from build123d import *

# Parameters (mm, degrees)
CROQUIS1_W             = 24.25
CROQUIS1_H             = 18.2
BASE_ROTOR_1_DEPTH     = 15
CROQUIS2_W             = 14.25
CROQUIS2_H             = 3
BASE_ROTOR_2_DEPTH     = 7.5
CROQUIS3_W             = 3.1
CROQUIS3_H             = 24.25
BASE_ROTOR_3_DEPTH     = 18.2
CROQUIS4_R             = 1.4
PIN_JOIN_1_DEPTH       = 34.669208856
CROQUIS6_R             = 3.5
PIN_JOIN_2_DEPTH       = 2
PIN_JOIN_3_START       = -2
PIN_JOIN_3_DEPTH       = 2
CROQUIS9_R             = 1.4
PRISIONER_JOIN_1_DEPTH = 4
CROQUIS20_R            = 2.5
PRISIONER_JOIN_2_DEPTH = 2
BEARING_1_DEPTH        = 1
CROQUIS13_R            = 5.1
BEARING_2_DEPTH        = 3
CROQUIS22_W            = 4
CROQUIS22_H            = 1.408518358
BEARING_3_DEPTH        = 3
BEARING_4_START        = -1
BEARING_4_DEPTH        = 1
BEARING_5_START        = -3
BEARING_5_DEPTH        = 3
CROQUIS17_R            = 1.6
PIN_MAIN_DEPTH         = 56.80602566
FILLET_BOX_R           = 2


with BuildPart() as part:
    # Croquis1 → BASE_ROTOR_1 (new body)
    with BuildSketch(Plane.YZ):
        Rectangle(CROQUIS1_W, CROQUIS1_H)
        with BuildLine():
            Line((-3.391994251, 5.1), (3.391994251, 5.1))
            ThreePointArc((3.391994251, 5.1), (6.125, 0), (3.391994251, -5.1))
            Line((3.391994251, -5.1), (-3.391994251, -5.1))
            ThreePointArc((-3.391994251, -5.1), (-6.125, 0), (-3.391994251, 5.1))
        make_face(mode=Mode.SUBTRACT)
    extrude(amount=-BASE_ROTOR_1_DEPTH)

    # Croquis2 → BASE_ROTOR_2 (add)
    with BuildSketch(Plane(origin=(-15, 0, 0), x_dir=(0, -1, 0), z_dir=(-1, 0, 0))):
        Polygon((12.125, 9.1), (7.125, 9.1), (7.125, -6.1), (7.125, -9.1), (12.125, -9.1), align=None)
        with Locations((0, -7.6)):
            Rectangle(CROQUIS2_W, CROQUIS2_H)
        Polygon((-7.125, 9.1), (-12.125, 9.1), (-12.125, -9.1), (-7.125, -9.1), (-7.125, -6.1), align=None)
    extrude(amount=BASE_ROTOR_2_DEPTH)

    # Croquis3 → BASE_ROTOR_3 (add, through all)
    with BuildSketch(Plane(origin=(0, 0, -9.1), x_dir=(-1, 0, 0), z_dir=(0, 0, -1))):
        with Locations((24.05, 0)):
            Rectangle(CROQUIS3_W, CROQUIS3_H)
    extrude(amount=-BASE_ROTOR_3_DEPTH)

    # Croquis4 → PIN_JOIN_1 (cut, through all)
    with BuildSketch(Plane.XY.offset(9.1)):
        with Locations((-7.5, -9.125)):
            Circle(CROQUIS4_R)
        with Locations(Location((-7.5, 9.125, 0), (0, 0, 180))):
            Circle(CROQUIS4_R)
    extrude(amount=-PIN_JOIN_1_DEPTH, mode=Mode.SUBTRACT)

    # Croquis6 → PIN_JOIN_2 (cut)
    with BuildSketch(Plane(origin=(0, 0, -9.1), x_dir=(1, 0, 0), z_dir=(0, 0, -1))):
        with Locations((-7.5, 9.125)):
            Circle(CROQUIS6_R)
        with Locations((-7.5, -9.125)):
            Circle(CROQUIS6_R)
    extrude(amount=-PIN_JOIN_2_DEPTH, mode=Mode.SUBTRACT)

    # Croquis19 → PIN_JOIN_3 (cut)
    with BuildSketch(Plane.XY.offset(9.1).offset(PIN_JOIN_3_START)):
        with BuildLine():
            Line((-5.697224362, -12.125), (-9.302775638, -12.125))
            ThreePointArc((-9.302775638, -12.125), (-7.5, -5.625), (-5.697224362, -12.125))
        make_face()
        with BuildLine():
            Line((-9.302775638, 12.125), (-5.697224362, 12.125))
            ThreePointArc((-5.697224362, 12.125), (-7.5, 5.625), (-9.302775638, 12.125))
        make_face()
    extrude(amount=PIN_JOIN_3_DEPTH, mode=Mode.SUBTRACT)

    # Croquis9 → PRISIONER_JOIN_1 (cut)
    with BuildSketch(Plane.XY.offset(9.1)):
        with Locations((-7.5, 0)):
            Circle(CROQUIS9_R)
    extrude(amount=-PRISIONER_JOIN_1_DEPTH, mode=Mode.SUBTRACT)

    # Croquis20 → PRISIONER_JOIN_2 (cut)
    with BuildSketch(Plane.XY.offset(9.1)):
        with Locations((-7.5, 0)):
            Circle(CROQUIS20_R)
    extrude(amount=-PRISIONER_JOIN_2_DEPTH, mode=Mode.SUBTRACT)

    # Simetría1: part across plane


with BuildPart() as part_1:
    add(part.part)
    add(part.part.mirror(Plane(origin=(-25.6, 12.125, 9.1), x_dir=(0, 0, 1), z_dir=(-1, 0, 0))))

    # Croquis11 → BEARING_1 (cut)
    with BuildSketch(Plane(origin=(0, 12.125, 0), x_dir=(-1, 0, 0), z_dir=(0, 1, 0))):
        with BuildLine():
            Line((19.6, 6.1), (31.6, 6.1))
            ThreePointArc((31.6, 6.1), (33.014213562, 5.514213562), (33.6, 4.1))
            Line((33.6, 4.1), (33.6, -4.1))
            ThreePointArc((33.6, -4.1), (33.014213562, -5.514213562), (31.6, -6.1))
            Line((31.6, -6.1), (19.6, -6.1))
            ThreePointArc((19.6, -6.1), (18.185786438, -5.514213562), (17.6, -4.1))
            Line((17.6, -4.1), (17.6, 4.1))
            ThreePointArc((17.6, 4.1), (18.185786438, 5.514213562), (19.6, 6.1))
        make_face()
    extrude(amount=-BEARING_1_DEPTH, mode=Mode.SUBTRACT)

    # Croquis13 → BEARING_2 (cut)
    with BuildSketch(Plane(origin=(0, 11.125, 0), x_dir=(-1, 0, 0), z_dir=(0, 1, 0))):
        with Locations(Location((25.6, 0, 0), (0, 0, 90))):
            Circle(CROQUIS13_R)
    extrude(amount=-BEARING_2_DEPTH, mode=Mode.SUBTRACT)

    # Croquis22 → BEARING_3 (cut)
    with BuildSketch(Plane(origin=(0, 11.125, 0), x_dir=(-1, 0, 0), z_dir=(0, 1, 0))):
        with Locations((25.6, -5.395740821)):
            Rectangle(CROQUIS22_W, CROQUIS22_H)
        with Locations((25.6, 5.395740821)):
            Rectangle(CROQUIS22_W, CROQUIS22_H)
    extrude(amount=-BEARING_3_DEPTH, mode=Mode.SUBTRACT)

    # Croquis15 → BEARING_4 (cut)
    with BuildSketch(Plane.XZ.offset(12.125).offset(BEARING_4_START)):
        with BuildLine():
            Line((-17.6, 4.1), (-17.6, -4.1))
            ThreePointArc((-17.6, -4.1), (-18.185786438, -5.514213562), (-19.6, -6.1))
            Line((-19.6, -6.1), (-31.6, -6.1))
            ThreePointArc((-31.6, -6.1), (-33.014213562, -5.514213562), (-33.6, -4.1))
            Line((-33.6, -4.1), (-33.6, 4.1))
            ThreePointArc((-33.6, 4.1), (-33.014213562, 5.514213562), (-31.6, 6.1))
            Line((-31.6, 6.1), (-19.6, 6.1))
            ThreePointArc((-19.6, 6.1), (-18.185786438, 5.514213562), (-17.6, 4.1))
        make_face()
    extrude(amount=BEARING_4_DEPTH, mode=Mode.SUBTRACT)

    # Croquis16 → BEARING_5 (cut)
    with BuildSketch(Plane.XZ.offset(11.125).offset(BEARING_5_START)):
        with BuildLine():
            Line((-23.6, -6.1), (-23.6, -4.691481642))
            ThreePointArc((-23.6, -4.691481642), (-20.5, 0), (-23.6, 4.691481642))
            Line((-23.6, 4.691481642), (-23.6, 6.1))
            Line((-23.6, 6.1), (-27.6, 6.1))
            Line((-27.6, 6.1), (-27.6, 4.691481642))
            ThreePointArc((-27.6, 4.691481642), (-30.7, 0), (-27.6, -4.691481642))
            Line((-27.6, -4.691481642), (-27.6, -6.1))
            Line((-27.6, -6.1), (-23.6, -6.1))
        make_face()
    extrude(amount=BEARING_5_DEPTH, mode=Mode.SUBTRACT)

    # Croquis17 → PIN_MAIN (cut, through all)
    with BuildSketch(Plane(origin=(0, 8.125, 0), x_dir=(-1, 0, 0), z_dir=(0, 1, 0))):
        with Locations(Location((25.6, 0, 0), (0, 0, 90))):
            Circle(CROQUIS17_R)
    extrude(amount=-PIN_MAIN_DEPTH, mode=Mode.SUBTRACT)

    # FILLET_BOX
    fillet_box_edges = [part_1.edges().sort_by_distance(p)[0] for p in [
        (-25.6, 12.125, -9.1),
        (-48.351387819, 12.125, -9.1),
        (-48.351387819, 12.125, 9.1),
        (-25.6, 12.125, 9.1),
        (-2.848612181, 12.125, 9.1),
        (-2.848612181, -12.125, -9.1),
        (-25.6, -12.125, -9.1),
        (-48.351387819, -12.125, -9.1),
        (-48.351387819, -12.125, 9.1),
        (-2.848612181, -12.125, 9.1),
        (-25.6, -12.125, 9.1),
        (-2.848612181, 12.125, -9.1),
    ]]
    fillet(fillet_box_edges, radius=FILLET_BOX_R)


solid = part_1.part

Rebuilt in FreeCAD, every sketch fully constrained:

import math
import FreeCAD as App
import Part
import Sketcher
from FreeCAD import Vector


def edges_at(feature, points):
    """Names of the edges that pass closest to the given points."""
    edges = feature.Shape.Edges
    near = lambda p: min(range(len(edges)), key=lambda i: edges[i].distToShape(Part.Vertex(*p))[0])
    return sorted({f"Edge{near(p) + 1}" for p in points})


def add_polygon(sketch, points):
    """Adds a closed chain of lines whose ends are joined by coincident constraints."""
    first, n = sketch.GeometryCount, len(points)
    for a, b in zip(points, points[1:] + points[:1]):
        sketch.addGeometry(Part.LineSegment(App.Vector(*a, 0), App.Vector(*b, 0)), False)
    for i in range(n):
        sketch.addConstraint(Sketcher.Constraint("Coincident", first + i, 2, first + (i + 1) % n, 1))

doc = App.newDocument("Part")
body = doc.addObject("PartDesign::Body", "Body")

# Sketch on YZ plane
sketch1 = body.newObject("Sketcher::SketchObject", "Sketch")
sketch1.AttachmentSupport = (doc.getObject("YZ_Plane"), [""])
sketch1.MapMode = "FlatFace"
add_polygon(sketch1, [(-12.125, 9.1), (-12.125, -9.1), (12.125, -9.1), (12.125, 9.1)])  # lines 0-3
sketch1.addGeometry(Part.ArcOfCircle(Part.Circle(Vector(0, 0, 0), Vector(0, 0, 1), 6.125), math.radians(123.627756), math.radians(236.372244)), False)  # 4
sketch1.addGeometry(Part.LineSegment(Vector(-3.391994, 5.1, 0), Vector(3.391994, 5.1, 0)), False)  # 5
sketch1.addGeometry(Part.ArcOfCircle(Part.Circle(Vector(0, 0, 0), Vector(0, 0, 1), 6.125), math.radians(-56.372244), math.radians(56.372244)), False)  # 6
sketch1.addGeometry(Part.LineSegment(Vector(3.391994, -5.1, 0), Vector(-3.391994, -5.1, 0)), False)  # 7
sketch1.addConstraint([
    Sketcher.Constraint("Coincident", 4, 1, 5, 1),
    Sketcher.Constraint("Coincident", 5, 2, 6, 2),
    Sketcher.Constraint("Coincident", 6, 1, 7, 1),
    Sketcher.Constraint("Coincident", 7, 2, 4, 2),
    Sketcher.Constraint("Vertical", 0),
    Sketcher.Constraint("Horizontal", 1),
    Sketcher.Constraint("Vertical", 2),
    Sketcher.Constraint("Horizontal", 3),
    Sketcher.Constraint("Horizontal", 5),
    Sketcher.Constraint("Horizontal", 7),
    Sketcher.Constraint("Coincident", 4, 3, -1, 1),
    Sketcher.Constraint("Coincident", 6, 3, -1, 1),
    Sketcher.Constraint("Equal", 4, 6),
    Sketcher.Constraint("Symmetric", 0, 2, 2, 2, -1, 1),
    Sketcher.Constraint("Vertical", 5, 2, 6, 1),
    Sketcher.Constraint("DistanceY", 0, 2, 0, 1, 18.2),
    Sketcher.Constraint("Radius", 4, 6.125),
    Sketcher.Constraint("DistanceY", 4, 1, 3, 2, 4.0),
    Sketcher.Constraint("DistanceX", 1, 1, 1, 2, 24.25),
])
pad1 = body.newObject("PartDesign::Pad", "Pad")
pad1.Profile = sketch1
pad1.Length = 15
pad1.Reversed = True

# Sketch on YZ plane
sketch2 = body.newObject("Sketcher::SketchObject", "Sketch001")
sketch2.AttachmentSupport = (doc.getObject("YZ_Plane"), [""])
sketch2.MapMode = "FlatFace"
sketch2.AttachmentOffset = App.Placement(Vector(0, 0, -15), App.Rotation())
add_polygon(sketch2, [(-12.125, 9.1), (-7.125, 9.1), (-7.125, -6.1), (7.125, -6.1), (7.125, 9.1), (12.125, 9.1), (12.125, -9.1), (-12.125, -9.1)])  # lines 0-7
sketch2.addConstraint([
    Sketcher.Constraint("Horizontal", 0),
    Sketcher.Constraint("Vertical", 1),
    Sketcher.Constraint("Horizontal", 2),
    Sketcher.Constraint("Vertical", 3),
    Sketcher.Constraint("Horizontal", 4),
    Sketcher.Constraint("Vertical", 5),
    Sketcher.Constraint("Horizontal", 6),
    Sketcher.Constraint("Vertical", 7),
    Sketcher.Constraint("Symmetric", 4, 2, 6, 2, -1, 1),
    Sketcher.Constraint("Symmetric", 0, 2, 3, 2, -2),
    Sketcher.Constraint("DistanceX", 0, 1, 0, 2, 5.0),
    Sketcher.Constraint("DistanceY", 1, 2, 1, 1, 15.2),
    Sketcher.Constraint("DistanceY", 5, 2, 5, 1, 18.2),
    Sketcher.Constraint("DistanceX", 2, 1, 2, 2, 14.25),
])
pad2 = body.newObject("PartDesign::Pad", "Pad001")
pad2.Profile = sketch2
pad2.Length = 7.5
pad2.Reversed = True

# Sketch on XY plane
sketch3 = body.newObject("Sketcher::SketchObject", "Sketch002")
sketch3.AttachmentSupport = (doc.getObject("XY_Plane"), [""])
sketch3.MapMode = "FlatFace"
sketch3.AttachmentOffset = App.Placement(Vector(0, 0, -9.1), App.Rotation())
add_polygon(sketch3, [(-22.5, 12.125), (-22.5, -12.125), (-25.6, -12.125), (-25.6, 12.125)])  # lines 0-3
sketch3.addConstraint([
    Sketcher.Constraint("Vertical", 0),
    Sketcher.Constraint("Horizontal", 1),
    Sketcher.Constraint("Vertical", 2),
    Sketcher.Constraint("Horizontal", 3),
    Sketcher.Constraint("DistanceX", 1, 2, 1, 1, 3.1),
    Sketcher.Constraint("DistanceY", 0, 2, 0, 1, 24.25),
    Sketcher.Constraint("DistanceX", 0, 2, -1, 1, 22.5),
    Sketcher.Constraint("DistanceY", 0, 2, -1, 1, 12.125),
])
pad3 = body.newObject("PartDesign::Pad", "Pad002")
pad3.Profile = sketch3
pad3.Length = 18.2

# Sketch on XY plane
sketch4 = body.newObject("Sketcher::SketchObject", "Sketch003")
sketch4.AttachmentSupport = (doc.getObject("XY_Plane"), [""])
sketch4.MapMode = "FlatFace"
sketch4.AttachmentOffset = App.Placement(Vector(0, 0, 9.1), App.Rotation())
sketch4.addGeometry([
    Part.Circle(Vector(-7.5, -9.125, 0), Vector(0, 0, 1), 1.4),
    Part.Circle(Vector(-7.5, 9.125, 0), Vector(0, 0, 1), 1.4),
], False)
sketch4.addConstraint([
    Sketcher.Constraint("Equal", 0, 1),
    Sketcher.Constraint("Symmetric", 0, 3, 1, 3, -1),
    Sketcher.Constraint("Diameter", 0, 2.8),
    Sketcher.Constraint("DistanceX", 0, 3, -1, 1, 7.5),
    Sketcher.Constraint("DistanceY", 0, 3, 1, 3, 18.25),
])
pocket1 = body.newObject("PartDesign::Pocket", "Pocket")
pocket1.Profile = sketch4
pocket1.Type = "ThroughAll"

# Sketch on XY plane
sketch5 = body.newObject("Sketcher::SketchObject", "Sketch004")
sketch5.AttachmentSupport = (doc.getObject("XY_Plane"), [""])
sketch5.MapMode = "FlatFace"
sketch5.AttachmentOffset = App.Placement(Vector(0, 0, -9.1), App.Rotation())
sketch5.addGeometry([
    Part.Circle(Vector(-7.5, -9.125, 0), Vector(0, 0, 1), 3.5),
    Part.Circle(Vector(-7.5, 9.125, 0), Vector(0, 0, 1), 3.5),
], False)
sketch5.addConstraint([
    Sketcher.Constraint("Equal", 0, 1),
    Sketcher.Constraint("Symmetric", 0, 3, 1, 3, -1),
    Sketcher.Constraint("Diameter", 0, 7.0),
    Sketcher.Constraint("DistanceX", 0, 3, -1, 1, 7.5),
    Sketcher.Constraint("DistanceY", 0, 3, 1, 3, 18.25),
])
pocket2 = body.newObject("PartDesign::Pocket", "Pocket001")
pocket2.Profile = sketch5
pocket2.Length = 2
pocket2.Reversed = True

# Sketch on XY plane
sketch6 = body.newObject("Sketcher::SketchObject", "Sketch005")
sketch6.AttachmentSupport = (doc.getObject("XY_Plane"), [""])
sketch6.MapMode = "FlatFace"
sketch6.AttachmentOffset = App.Placement(Vector(0, 0, 7.1), App.Rotation())
sketch6.addGeometry([
    Part.LineSegment(Vector(-9.302776, -12.125, 0), Vector(-5.697224, -12.125, 0)),
    Part.ArcOfCircle(Part.Circle(Vector(-7.5, -9.125, 0), Vector(0, 0, 1), 3.5), math.radians(-58.997281), math.radians(238.997281)),
    Part.LineSegment(Vector(-5.697224, 12.125, 0), Vector(-9.302776, 12.125, 0)),
    Part.ArcOfCircle(Part.Circle(Vector(-7.5, 9.125, 0), Vector(0, 0, 1), 3.5), math.radians(121.002719), math.radians(418.997281)),
], False)
sketch6.addConstraint([
    Sketcher.Constraint("Coincident", 0, 1, 1, 2),
    Sketcher.Constraint("Coincident", 1, 1, 0, 2),
    Sketcher.Constraint("Coincident", 2, 1, 3, 2),
    Sketcher.Constraint("Coincident", 3, 1, 2, 2),
    Sketcher.Constraint("Horizontal", 0),
    Sketcher.Constraint("Horizontal", 2),
    Sketcher.Constraint("Equal", 1, 3),
    Sketcher.Constraint("Symmetric", 1, 3, 3, 3, -1),
    Sketcher.Constraint("Vertical", 1, 1, 2, 1),
    Sketcher.Constraint("Radius", 1, 3.5),
    Sketcher.Constraint("DistanceY", 0, 1, 1, 3, 3.0),
    Sketcher.Constraint("DistanceX", 1, 3, -1, 1, 7.5),
    Sketcher.Constraint("DistanceY", 1, 3, 3, 3, 18.25),
])
pocket3 = body.newObject("PartDesign::Pocket", "Pocket002")
pocket3.Profile = sketch6
pocket3.Length = 2
pocket3.Reversed = True

# Sketch on XY plane
sketch7 = body.newObject("Sketcher::SketchObject", "Sketch006")
sketch7.AttachmentSupport = (doc.getObject("XY_Plane"), [""])
sketch7.MapMode = "FlatFace"
sketch7.AttachmentOffset = App.Placement(Vector(0, 0, 9.1), App.Rotation())
sketch7.addGeometry(Part.Circle(Vector(-7.5, 0, 0), Vector(0, 0, 1), 1.4), False)
sketch7.addConstraint([
    Sketcher.Constraint("PointOnObject", 0, 3, -1),
    Sketcher.Constraint("Diameter", 0, 2.8),
    Sketcher.Constraint("DistanceX", 0, 3, -1, 1, 7.5),
])
pocket4 = body.newObject("PartDesign::Pocket", "Pocket003")
pocket4.Profile = sketch7
pocket4.Length = 4

# Sketch on XY plane
sketch8 = body.newObject("Sketcher::SketchObject", "Sketch007")
sketch8.AttachmentSupport = (doc.getObject("XY_Plane"), [""])
sketch8.MapMode = "FlatFace"
sketch8.AttachmentOffset = App.Placement(Vector(0, 0, 9.1), App.Rotation())
sketch8.addGeometry(Part.Circle(Vector(-7.5, 0, 0), Vector(0, 0, 1), 2.5), False)
sketch8.addConstraint([
    Sketcher.Constraint("PointOnObject", 0, 3, -1),
    Sketcher.Constraint("Diameter", 0, 5.0),
    Sketcher.Constraint("DistanceX", 0, 3, -1, 1, 7.5),
])
pocket5 = body.newObject("PartDesign::Pocket", "Pocket004")
pocket5.Profile = sketch8
pocket5.Length = 2
body2 = doc.addObject("PartDesign::Body", "Body001")
doc.recompute()

body2.BaseFeature = body
doc.recompute()

mirroring = doc.addObject("Part::Mirroring", "Mirroring")
mirroring.Source = body
mirroring.Base = Vector(-25.6, 12.125, 9.1)
mirroring.Normal = Vector(-1, 0, 0)
body3 = doc.addObject("PartDesign::Body", "Body002")
body3.BaseFeature = mirroring
boolean = body2.newObject("PartDesign::Boolean", "Boolean")
boolean.Type = "Fuse"
boolean.addObjects([body3])
doc.recompute()

# Sketch on XZ plane
sketch9 = body2.newObject("Sketcher::SketchObject", "Sketch008")
sketch9.AttachmentSupport = (doc.getObject("XZ_Plane001"), [""])
sketch9.MapMode = "FlatFace"
sketch9.AttachmentOffset = App.Placement(Vector(0, 0, -12.125), App.Rotation())
sketch9.addGeometry([
    Part.LineSegment(Vector(-31.6, 6.1, 0), Vector(-19.6, 6.1, 0)),  # 0
    Part.ArcOfCircle(Part.Circle(Vector(-19.6, 4.1, 0), Vector(0, 0, 1), 2), math.radians(0), math.radians(90)),  # 1
    Part.LineSegment(Vector(-17.6, 4.1, 0), Vector(-17.6, -4.1, 0)),  # 2
    Part.ArcOfCircle(Part.Circle(Vector(-19.6, -4.1, 0), Vector(0, 0, 1), 2), math.radians(-90), math.radians(0)),  # 3
    Part.LineSegment(Vector(-19.6, -6.1, 0), Vector(-31.6, -6.1, 0)),  # 4
    Part.ArcOfCircle(Part.Circle(Vector(-31.6, -4.1, 0), Vector(0, 0, 1), 2), math.radians(-180), math.radians(-90)),  # 5
    Part.LineSegment(Vector(-33.6, -4.1, 0), Vector(-33.6, 4.1, 0)),  # 6
    Part.ArcOfCircle(Part.Circle(Vector(-31.6, 4.1, 0), Vector(0, 0, 1), 2), math.radians(90), math.radians(180)),  # 7
], False)
sketch9.addConstraint([
    Sketcher.Constraint("Tangent", 0, 2, 1, 2),
    Sketcher.Constraint("Tangent", 1, 1, 2, 1),
    Sketcher.Constraint("Tangent", 2, 2, 3, 2),
    Sketcher.Constraint("Tangent", 3, 1, 4, 1),
    Sketcher.Constraint("Tangent", 4, 2, 5, 2),
    Sketcher.Constraint("Tangent", 5, 1, 6, 1),
    Sketcher.Constraint("Tangent", 6, 2, 7, 2),
    Sketcher.Constraint("Tangent", 7, 1, 0, 1),
    Sketcher.Constraint("Horizontal", 0),
    Sketcher.Constraint("Vertical", 2),
    Sketcher.Constraint("Horizontal", 4),
    Sketcher.Constraint("Vertical", 6),
    Sketcher.Constraint("Equal", 1, 3),
    Sketcher.Constraint("Equal", 3, 5),
    Sketcher.Constraint("Equal", 5, 7),
    Sketcher.Constraint("Radius", 1, 2.0),
    Sketcher.Constraint("DistanceX", 0, 1, 0, 2, 12.0),
    Sketcher.Constraint("DistanceY", 2, 2, 2, 1, 8.2),
    Sketcher.Constraint("DistanceX", 1, 3, -1, 1, 19.6),
    Sketcher.Constraint("DistanceY", -1, 1, 1, 3, 4.1),
])
pocket6 = body2.newObject("PartDesign::Pocket", "Pocket005")
pocket6.Profile = sketch9
pocket6.Length = 1
pocket6.Reversed = True

# Sketch on XZ plane
sketch10 = body2.newObject("Sketcher::SketchObject", "Sketch009")
sketch10.AttachmentSupport = (doc.getObject("XZ_Plane001"), [""])
sketch10.MapMode = "FlatFace"
sketch10.AttachmentOffset = App.Placement(Vector(0, 0, -11.125), App.Rotation())
sketch10.addGeometry(Part.Circle(Vector(-25.6, 0, 0), Vector(0, 0, 1), 5.1), False)
sketch10.addConstraint([
    Sketcher.Constraint("PointOnObject", 0, 3, -1),
    Sketcher.Constraint("Diameter", 0, 10.2),
    Sketcher.Constraint("DistanceX", 0, 3, -1, 1, 25.6),
])
pocket7 = body2.newObject("PartDesign::Pocket", "Pocket006")
pocket7.Profile = sketch10
pocket7.Length = 3
pocket7.Reversed = True

# Sketch on XZ plane
sketch11 = body2.newObject("Sketcher::SketchObject", "Sketch010")
sketch11.AttachmentSupport = (doc.getObject("XZ_Plane001"), [""])
sketch11.MapMode = "FlatFace"
sketch11.AttachmentOffset = App.Placement(Vector(0, 0, -11.125), App.Rotation())
add_polygon(sketch11, [(-23.6, -4.691482), (-23.6, -6.1), (-27.6, -6.1), (-27.6, -4.691482)])  # lines 0-3
add_polygon(sketch11, [(-23.6, 6.1), (-23.6, 4.691482), (-27.6, 4.691482), (-27.6, 6.1)])  # lines 4-7
sketch11.addConstraint([
    Sketcher.Constraint("Vertical", 0),
    Sketcher.Constraint("Horizontal", 1),
    Sketcher.Constraint("Vertical", 2),
    Sketcher.Constraint("Horizontal", 3),
    Sketcher.Constraint("Vertical", 4),
    Sketcher.Constraint("Horizontal", 5),
    Sketcher.Constraint("Vertical", 6),
    Sketcher.Constraint("Horizontal", 7),
    Sketcher.Constraint("Symmetric", 3, 2, 4, 2, -1),
    Sketcher.Constraint("Symmetric", 1, 2, 6, 2, -1),
    Sketcher.Constraint("DistanceX", 1, 2, 1, 1, 4.0),
    Sketcher.Constraint("DistanceX", 0, 2, -1, 1, 23.6),
    Sketcher.Constraint("DistanceY", 0, 2, -1, 1, 6.1),
    Sketcher.Constraint("DistanceY", 0, 2, 0, 1, 1.408518),
])
pocket8 = body2.newObject("PartDesign::Pocket", "Pocket007")
pocket8.Profile = sketch11
pocket8.Length = 3
pocket8.Reversed = True

# Sketch on XZ plane
sketch12 = body2.newObject("Sketcher::SketchObject", "Sketch011")
sketch12.AttachmentSupport = (doc.getObject("XZ_Plane001"), [""])
sketch12.MapMode = "FlatFace"
sketch12.AttachmentOffset = App.Placement(Vector(0, 0, 11.125), App.Rotation())
sketch12.addGeometry([
    Part.LineSegment(Vector(-17.6, -4.1, 0), Vector(-17.6, 4.1, 0)),  # 0
    Part.ArcOfCircle(Part.Circle(Vector(-19.6, 4.1, 0), Vector(0, 0, 1), 2), math.radians(0), math.radians(90)),  # 1
    Part.LineSegment(Vector(-19.6, 6.1, 0), Vector(-31.6, 6.1, 0)),  # 2
    Part.ArcOfCircle(Part.Circle(Vector(-31.6, 4.1, 0), Vector(0, 0, 1), 2), math.radians(90), math.radians(180)),  # 3
    Part.LineSegment(Vector(-33.6, 4.1, 0), Vector(-33.6, -4.1, 0)),  # 4
    Part.ArcOfCircle(Part.Circle(Vector(-31.6, -4.1, 0), Vector(0, 0, 1), 2), math.radians(-180), math.radians(-90)),  # 5
    Part.LineSegment(Vector(-31.6, -6.1, 0), Vector(-19.6, -6.1, 0)),  # 6
    Part.ArcOfCircle(Part.Circle(Vector(-19.6, -4.1, 0), Vector(0, 0, 1), 2), math.radians(-90), math.radians(0)),  # 7
], False)
sketch12.addConstraint([
    Sketcher.Constraint("Tangent", 0, 2, 1, 1),
    Sketcher.Constraint("Tangent", 1, 2, 2, 1),
    Sketcher.Constraint("Tangent", 2, 2, 3, 1),
    Sketcher.Constraint("Tangent", 3, 2, 4, 1),
    Sketcher.Constraint("Tangent", 4, 2, 5, 1),
    Sketcher.Constraint("Tangent", 5, 2, 6, 1),
    Sketcher.Constraint("Tangent", 6, 2, 7, 1),
    Sketcher.Constraint("Tangent", 7, 2, 0, 1),
    Sketcher.Constraint("Vertical", 0),
    Sketcher.Constraint("Horizontal", 2),
    Sketcher.Constraint("Vertical", 4),
    Sketcher.Constraint("Horizontal", 6),
    Sketcher.Constraint("Equal", 1, 3),
    Sketcher.Constraint("Equal", 3, 5),
    Sketcher.Constraint("Equal", 5, 7),
    Sketcher.Constraint("Radius", 1, 2.0),
    Sketcher.Constraint("DistanceX", 2, 2, 2, 1, 12.0),
    Sketcher.Constraint("DistanceY", 0, 1, 0, 2, 8.2),
    Sketcher.Constraint("DistanceX", 1, 3, -1, 1, 19.6),
    Sketcher.Constraint("DistanceY", -1, 1, 1, 3, 4.1),
])
pocket9 = body2.newObject("PartDesign::Pocket", "Pocket008")
pocket9.Profile = sketch12
pocket9.Length = 1
pocket9.Reversed = True

# Sketch on XZ plane
sketch13 = body2.newObject("Sketcher::SketchObject", "Sketch012")
sketch13.AttachmentSupport = (doc.getObject("XZ_Plane001"), [""])
sketch13.MapMode = "FlatFace"
sketch13.AttachmentOffset = App.Placement(Vector(0, 0, 8.125), App.Rotation())
sketch13.addGeometry([
    Part.LineSegment(Vector(-23.6, -6.1, 0), Vector(-23.6, -4.691482, 0)),  # 0
    Part.ArcOfCircle(Part.Circle(Vector(-25.6, 0, 0), Vector(0, 0, 1), 5.1), math.radians(-66.911228), math.radians(66.911228)),  # 1
    Part.LineSegment(Vector(-23.6, 4.691482, 0), Vector(-23.6, 6.1, 0)),  # 2
    Part.LineSegment(Vector(-23.6, 6.1, 0), Vector(-27.6, 6.1, 0)),  # 3
    Part.LineSegment(Vector(-27.6, 6.1, 0), Vector(-27.6, 4.691482, 0)),  # 4
    Part.ArcOfCircle(Part.Circle(Vector(-25.6, 0, 0), Vector(0, 0, 1), 5.1), math.radians(113.088772), math.radians(246.911228)),  # 5
    Part.LineSegment(Vector(-27.6, -4.691482, 0), Vector(-27.6, -6.1, 0)),  # 6
    Part.LineSegment(Vector(-27.6, -6.1, 0), Vector(-23.6, -6.1, 0)),  # 7
], False)
sketch13.addConstraint([
    Sketcher.Constraint("Coincident", 0, 2, 1, 1),
    Sketcher.Constraint("Coincident", 1, 2, 2, 1),
    Sketcher.Constraint("Coincident", 2, 2, 3, 1),
    Sketcher.Constraint("Coincident", 3, 2, 4, 1),
    Sketcher.Constraint("Coincident", 4, 2, 5, 1),
    Sketcher.Constraint("Coincident", 5, 2, 6, 1),
    Sketcher.Constraint("Coincident", 6, 2, 7, 1),
    Sketcher.Constraint("Coincident", 7, 2, 0, 1),
    Sketcher.Constraint("Vertical", 0),
    Sketcher.Constraint("Vertical", 2),
    Sketcher.Constraint("Horizontal", 3),
    Sketcher.Constraint("Vertical", 4),
    Sketcher.Constraint("Vertical", 6),
    Sketcher.Constraint("Horizontal", 7),
    Sketcher.Constraint("Coincident", 5, 3, 1, 3),
    Sketcher.Constraint("Equal", 1, 5),
    Sketcher.Constraint("Symmetric", 0, 2, 1, 2, -1),
    Sketcher.Constraint("Symmetric", 3, 2, 6, 2, -1),
    Sketcher.Constraint("Horizontal", 1, 2, 4, 2),
    Sketcher.Constraint("Radius", 1, 5.1),
    Sketcher.Constraint("DistanceX", 3, 2, 3, 1, 4.0),
    Sketcher.Constraint("DistanceX", 1, 3, -1, 1, 25.6),
    Sketcher.Constraint("DistanceY", -1, 1, 2, 2, 6.1),
])
pocket10 = body2.newObject("PartDesign::Pocket", "Pocket009")
pocket10.Profile = sketch13
pocket10.Length = 3
pocket10.Reversed = True

# Sketch on XZ plane
sketch14 = body2.newObject("Sketcher::SketchObject", "Sketch013")
sketch14.AttachmentSupport = (doc.getObject("XZ_Plane001"), [""])
sketch14.MapMode = "FlatFace"
sketch14.AttachmentOffset = App.Placement(Vector(0, 0, -8.125), App.Rotation())
sketch14.addGeometry(Part.Circle(Vector(-25.6, 0, 0), Vector(0, 0, 1), 1.6), False)
sketch14.addConstraint([
    Sketcher.Constraint("PointOnObject", 0, 3, -1),
    Sketcher.Constraint("Diameter", 0, 3.2),
    Sketcher.Constraint("DistanceX", 0, 3, -1, 1, 25.6),
])
pocket11 = body2.newObject("PartDesign::Pocket", "Pocket010")
pocket11.Profile = sketch14
pocket11.Type = "ThroughAll"
pocket11.Reversed = True
doc.recompute()

fillet = body2.newObject("PartDesign::Fillet", "Fillet")
fillet.Base = (pocket11, edges_at(pocket11, [
    (-25.6, 12.125, -9.1),
    (-48.351, 12.125, -9.1),
    (-48.351, 12.125, 9.1),
    (-25.6, 12.125, 9.1),
    (-2.849, 12.125, 9.1),
    (-2.849, -12.125, -9.1),
    (-25.6, -12.125, -9.1),
    (-48.351, -12.125, -9.1),
    (-48.351, -12.125, 9.1),
    (-2.849, -12.125, 9.1),
    (-25.6, -12.125, 9.1),
    (-2.849, 12.125, -9.1),
]))
fillet.Radius = 2
mirroring.Visibility = False

doc.recompute()
